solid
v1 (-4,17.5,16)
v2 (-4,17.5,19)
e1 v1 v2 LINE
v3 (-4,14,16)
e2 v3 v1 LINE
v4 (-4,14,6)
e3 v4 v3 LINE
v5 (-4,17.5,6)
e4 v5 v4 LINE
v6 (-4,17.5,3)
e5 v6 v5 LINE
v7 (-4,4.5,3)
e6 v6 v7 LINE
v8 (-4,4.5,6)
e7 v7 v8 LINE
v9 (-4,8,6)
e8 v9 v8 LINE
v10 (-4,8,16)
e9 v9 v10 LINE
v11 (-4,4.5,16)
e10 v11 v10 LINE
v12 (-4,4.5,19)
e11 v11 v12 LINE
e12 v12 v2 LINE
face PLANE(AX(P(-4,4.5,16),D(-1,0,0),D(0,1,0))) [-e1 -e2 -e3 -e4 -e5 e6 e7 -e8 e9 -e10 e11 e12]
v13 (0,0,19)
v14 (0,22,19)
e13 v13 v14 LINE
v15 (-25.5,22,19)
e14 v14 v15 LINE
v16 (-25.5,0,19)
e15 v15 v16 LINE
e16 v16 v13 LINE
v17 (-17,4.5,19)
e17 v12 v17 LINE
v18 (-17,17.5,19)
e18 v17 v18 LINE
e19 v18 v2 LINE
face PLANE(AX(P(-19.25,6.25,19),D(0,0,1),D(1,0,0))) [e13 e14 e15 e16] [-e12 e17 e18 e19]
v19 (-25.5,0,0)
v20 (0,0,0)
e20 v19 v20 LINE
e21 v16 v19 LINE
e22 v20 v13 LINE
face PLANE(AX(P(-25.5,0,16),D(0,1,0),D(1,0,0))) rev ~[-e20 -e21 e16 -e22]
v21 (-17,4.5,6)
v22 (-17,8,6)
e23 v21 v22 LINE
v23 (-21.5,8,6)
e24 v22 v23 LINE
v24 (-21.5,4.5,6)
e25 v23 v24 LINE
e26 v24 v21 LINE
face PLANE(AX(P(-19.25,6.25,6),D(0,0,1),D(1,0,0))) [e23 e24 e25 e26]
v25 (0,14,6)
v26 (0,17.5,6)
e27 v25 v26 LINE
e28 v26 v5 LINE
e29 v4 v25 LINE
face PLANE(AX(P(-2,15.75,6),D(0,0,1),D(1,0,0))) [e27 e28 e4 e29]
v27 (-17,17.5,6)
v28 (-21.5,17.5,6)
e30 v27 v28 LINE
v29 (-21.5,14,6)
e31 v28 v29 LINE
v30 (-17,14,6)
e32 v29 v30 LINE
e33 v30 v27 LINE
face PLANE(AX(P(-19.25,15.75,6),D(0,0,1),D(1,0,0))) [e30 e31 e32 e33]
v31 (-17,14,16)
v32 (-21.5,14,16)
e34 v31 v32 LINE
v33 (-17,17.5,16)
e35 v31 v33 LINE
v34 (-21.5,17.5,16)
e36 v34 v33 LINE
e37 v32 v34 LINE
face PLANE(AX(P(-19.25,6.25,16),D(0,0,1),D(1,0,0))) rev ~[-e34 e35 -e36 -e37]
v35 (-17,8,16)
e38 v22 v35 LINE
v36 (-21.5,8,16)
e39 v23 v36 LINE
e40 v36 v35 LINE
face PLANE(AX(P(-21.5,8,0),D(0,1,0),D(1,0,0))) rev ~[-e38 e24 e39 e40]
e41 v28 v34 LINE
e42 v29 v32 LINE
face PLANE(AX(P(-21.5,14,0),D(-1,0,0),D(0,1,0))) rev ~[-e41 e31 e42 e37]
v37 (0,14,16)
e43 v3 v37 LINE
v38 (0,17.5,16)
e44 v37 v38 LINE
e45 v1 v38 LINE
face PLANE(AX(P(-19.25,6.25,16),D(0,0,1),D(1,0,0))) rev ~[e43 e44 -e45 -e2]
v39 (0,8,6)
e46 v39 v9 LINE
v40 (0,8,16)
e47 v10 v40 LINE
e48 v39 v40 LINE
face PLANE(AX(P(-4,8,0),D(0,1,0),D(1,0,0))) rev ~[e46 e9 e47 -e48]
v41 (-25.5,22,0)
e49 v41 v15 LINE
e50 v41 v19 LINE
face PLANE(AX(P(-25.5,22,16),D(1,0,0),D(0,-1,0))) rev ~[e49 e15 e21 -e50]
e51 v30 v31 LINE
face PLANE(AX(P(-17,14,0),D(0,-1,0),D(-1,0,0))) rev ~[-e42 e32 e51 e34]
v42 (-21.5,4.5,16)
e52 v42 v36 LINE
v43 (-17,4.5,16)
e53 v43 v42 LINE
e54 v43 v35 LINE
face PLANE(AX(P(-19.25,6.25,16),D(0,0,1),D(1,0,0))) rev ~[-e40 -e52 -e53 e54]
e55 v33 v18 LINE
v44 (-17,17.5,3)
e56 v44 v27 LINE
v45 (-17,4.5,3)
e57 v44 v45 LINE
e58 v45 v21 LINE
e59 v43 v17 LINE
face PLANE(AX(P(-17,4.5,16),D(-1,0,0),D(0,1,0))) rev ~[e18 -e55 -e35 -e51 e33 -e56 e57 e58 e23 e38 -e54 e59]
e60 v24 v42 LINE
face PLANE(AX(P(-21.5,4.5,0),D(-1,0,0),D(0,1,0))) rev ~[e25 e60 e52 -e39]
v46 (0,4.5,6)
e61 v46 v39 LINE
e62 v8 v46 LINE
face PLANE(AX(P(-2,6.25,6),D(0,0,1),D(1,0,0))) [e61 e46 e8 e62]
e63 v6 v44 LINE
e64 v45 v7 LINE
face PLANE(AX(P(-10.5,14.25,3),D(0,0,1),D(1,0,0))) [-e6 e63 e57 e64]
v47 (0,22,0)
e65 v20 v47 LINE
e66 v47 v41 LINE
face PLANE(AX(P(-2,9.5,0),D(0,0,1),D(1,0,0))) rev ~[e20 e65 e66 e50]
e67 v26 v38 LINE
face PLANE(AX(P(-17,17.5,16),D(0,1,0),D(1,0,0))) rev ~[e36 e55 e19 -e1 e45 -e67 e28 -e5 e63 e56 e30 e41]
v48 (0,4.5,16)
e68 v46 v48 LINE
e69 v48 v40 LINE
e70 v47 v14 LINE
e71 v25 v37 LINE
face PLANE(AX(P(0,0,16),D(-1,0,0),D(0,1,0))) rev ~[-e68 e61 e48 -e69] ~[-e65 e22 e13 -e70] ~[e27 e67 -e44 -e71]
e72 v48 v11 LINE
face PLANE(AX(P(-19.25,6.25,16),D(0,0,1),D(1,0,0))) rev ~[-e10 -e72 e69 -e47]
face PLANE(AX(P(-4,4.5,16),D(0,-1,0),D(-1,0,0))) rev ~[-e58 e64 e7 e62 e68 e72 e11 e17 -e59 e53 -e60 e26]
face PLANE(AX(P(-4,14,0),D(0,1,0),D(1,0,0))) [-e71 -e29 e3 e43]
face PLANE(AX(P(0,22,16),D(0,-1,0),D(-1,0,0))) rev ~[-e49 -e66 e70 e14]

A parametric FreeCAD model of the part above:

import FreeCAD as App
import Part
import Sketcher

V = App.Vector
Q = App.Units.Quantity

doc = App.newDocument("Part")
body = doc.addObject("PartDesign::Body", "Body")

# Sketch on XY plane
sketch1 = body.newObject("Sketcher::SketchObject", "Sketch")
sketch1.AttachmentSupport = (doc.getObject("XY_Plane"), [""])
sketch1.MapMode = "FlatFace"
sketch1.addGeometry(Part.LineSegment(V(-25.5, 22, 0), V(-25.5, 0, 0)), False)
sketch1.addGeometry(Part.LineSegment(V(-25.5, 0, 0), V(0, 0, 0)), False)
sketch1.addGeometry(Part.LineSegment(V(0, 0, 0), V(0, 4.5, 0)), False)
sketch1.addGeometry(Part.LineSegment(V(0, 4.5, 0), V(-21.5, 4.5, 0)), False)
sketch1.addGeometry(Part.LineSegment(V(-21.5, 4.5, 0), V(-21.5, 8, 0)), False)
sketch1.addGeometry(Part.LineSegment(V(-21.5, 8, 0), V(-17, 8, 0)), False)
sketch1.addGeometry(Part.LineSegment(V(-17, 8, 0), V(-17, 14, 0)), False)
sketch1.addGeometry(Part.LineSegment(V(-17, 14, 0), V(-21.5, 14, 0)), False)
sketch1.addGeometry(Part.LineSegment(V(-21.5, 14, 0), V(-21.5, 17.5, 0)), False)
sketch1.addGeometry(Part.LineSegment(V(-21.5, 17.5, 0), V(0, 17.5, 0)), False)
sketch1.addGeometry(Part.LineSegment(V(0, 17.5, 0), V(0, 22, 0)), False)
sketch1.addGeometry(Part.LineSegment(V(0, 22, 0), V(-25.5, 22, 0)), False)
sketch1.addConstraint(Sketcher.Constraint("Coincident", 0, 2, 1, 1))
sketch1.addConstraint(Sketcher.Constraint("Coincident", 1, 2, 2, 1))
sketch1.addConstraint(Sketcher.Constraint("Coincident", 2, 2, 3, 1))
sketch1.addConstraint(Sketcher.Constraint("Coincident", 3, 2, 4, 1))
sketch1.addConstraint(Sketcher.Constraint("Coincident", 4, 2, 5, 1))
sketch1.addConstraint(Sketcher.Constraint("Coincident", 5, 2, 6, 1))
sketch1.addConstraint(Sketcher.Constraint("Coincident", 6, 2, 7, 1))
sketch1.addConstraint(Sketcher.Constraint("Coincident", 7, 2, 8, 1))
sketch1.addConstraint(Sketcher.Constraint("Coincident", 8, 2, 9, 1))
sketch1.addConstraint(Sketcher.Constraint("Coincident", 9, 2, 10, 1))
sketch1.addConstraint(Sketcher.Constraint("Coincident", 10, 2, 11, 1))
sketch1.addConstraint(Sketcher.Constraint("Coincident", 11, 2, 0, 1))
sketch1.addConstraint(Sketcher.Constraint("Vertical", 0))
sketch1.addConstraint(Sketcher.Constraint("Horizontal", 1))
sketch1.addConstraint(Sketcher.Constraint("Vertical", 2))
sketch1.addConstraint(Sketcher.Constraint("Horizontal", 3))
sketch1.addConstraint(Sketcher.Constraint("Vertical", 4))
sketch1.addConstraint(Sketcher.Constraint("Horizontal", 5))
sketch1.addConstraint(Sketcher.Constraint("Vertical", 6))
sketch1.addConstraint(Sketcher.Constraint("Horizontal", 7))
sketch1.addConstraint(Sketcher.Constraint("Vertical", 8))
sketch1.addConstraint(Sketcher.Constraint("Horizontal", 9))
sketch1.addConstraint(Sketcher.Constraint("Vertical", 10))
sketch1.addConstraint(Sketcher.Constraint("Horizontal", 11))
sketch1.addConstraint(Sketcher.Constraint("Coincident", 1, 2, -1, 1))
sketch1.addConstraint(Sketcher.Constraint("PointOnObject", 9, 2, -2))
sketch1.addConstraint(Sketcher.Constraint("Vertical", 4, 2, 7, 2))
sketch1.addConstraint(Sketcher.Constraint("Equal", 7, 2))
sketch1.addConstraint(Sketcher.Constraint("Equal", 4, 8))
sketch1.addConstraint(Sketcher.Constraint("Equal", 2, 10))
sketch1.addConstraint(Sketcher.Constraint("DistanceY", 0, 2, 0, 1, Q("22 mm")))
sketch1.addConstraint(Sketcher.Constraint("DistanceY", 6, 1, 6, 2, Q("6 mm")))
sketch1.addConstraint(Sketcher.Constraint("DistanceX", 1, 1, 1, 2, Q("25.5 mm")))
sketch1.addConstraint(Sketcher.Constraint("DistanceX", 3, 2, 3, 1, Q("21.5 mm")))
sketch1.addConstraint(Sketcher.Constraint("DistanceX", 5, 1, 5, 2, Q("4.5 mm")))
pad1 = body.newObject("PartDesign::Pad", "Pad")
pad1.Profile = sketch1
pad1.Length = 16

# Sketch on XY plane
sketch2 = body.newObject("Sketcher::SketchObject", "Sketch001")
sketch2.AttachmentSupport = (doc.getObject("XY_Plane"), [""])
sketch2.MapMode = "FlatFace"
sketch2.addGeometry(Part.LineSegment(V(-21.5, 4.5, 0), V(-17, 4.5, 0)), False)
sketch2.addGeometry(Part.LineSegment(V(-17, 4.5, 0), V(-17, 8, 0)), False)
sketch2.addGeometry(Part.LineSegment(V(-17, 8, 0), V(-21.5, 8, 0)), False)
sketch2.addGeometry(Part.LineSegment(V(-21.5, 8, 0), V(-21.5, 4.5, 0)), False)
sketch2.addGeometry(Part.LineSegment(V(-21.5, 14, 0), V(-17, 14, 0)), False)
sketch2.addGeometry(Part.LineSegment(V(-17, 14, 0), V(-17, 17.5, 0)), False)
sketch2.addGeometry(Part.LineSegment(V(-17, 17.5, 0), V(-21.5, 17.5, 0)), False)
sketch2.addGeometry(Part.LineSegment(V(-21.5, 17.5, 0), V(-21.5, 14, 0)), False)
sketch2.addGeometry(Part.LineSegment(V(0, 17.5, 0), V(-4, 17.5, 0)), False)
sketch2.addGeometry(Part.LineSegment(V(-4, 17.5, 0), V(-4, 14, 0)), False)
sketch2.addGeometry(Part.LineSegment(V(-4, 14, 0), V(0, 14, 0)), False)
sketch2.addGeometry(Part.LineSegment(V(0, 14, 0), V(0, 17.5, 0)), False)
sketch2.addGeometry(Part.LineSegment(V(-4, 4.5, 0), V(0, 4.5, 0)), False)
sketch2.addGeometry(Part.LineSegment(V(0, 4.5, 0), V(0, 8, 0)), False)
sketch2.addGeometry(Part.LineSegment(V(0, 8, 0), V(-4, 8, 0)), False)
sketch2.addGeometry(Part.LineSegment(V(-4, 8, 0), V(-4, 4.5, 0)), False)
sketch2.addConstraint(Sketcher.Constraint("Coincident", 0, 2, 1, 1))
sketch2.addConstraint(Sketcher.Constraint("Coincident", 1, 2, 2, 1))
sketch2.addConstraint(Sketcher.Constraint("Coincident", 2, 2, 3, 1))
sketch2.addConstraint(Sketcher.Constraint("Coincident", 3, 2, 0, 1))
sketch2.addConstraint(Sketcher.Constraint("Coincident", 4, 2, 5, 1))
sketch2.addConstraint(Sketcher.Constraint("Coincident", 5, 2, 6, 1))
sketch2.addConstraint(Sketcher.Constraint("Coincident", 6, 2, 7, 1))
sketch2.addConstraint(Sketcher.Constraint("Coincident", 7, 2, 4, 1))
sketch2.addConstraint(Sketcher.Constraint("Coincident", 8, 2, 9, 1))
sketch2.addConstraint(Sketcher.Constraint("Coincident", 9, 2, 10, 1))
sketch2.addConstraint(Sketcher.Constraint("Coincident", 10, 2, 11, 1))
sketch2.addConstraint(Sketcher.Constraint("Coincident", 11, 2, 8, 1))
sketch2.addConstraint(Sketcher.Constraint("Coincident", 12, 2, 13, 1))
sketch2.addConstraint(Sketcher.Constraint("Coincident", 13, 2, 14, 1))
sketch2.addConstraint(Sketcher.Constraint("Coincident", 14, 2, 15, 1))
sketch2.addConstraint(Sketcher.Constraint("Coincident", 15, 2, 12, 1))
sketch2.addConstraint(Sketcher.Constraint("Horizontal", 0))
sketch2.addConstraint(Sketcher.Constraint("Vertical", 1))
sketch2.addConstraint(Sketcher.Constraint("Horizontal", 2))
sketch2.addConstraint(Sketcher.Constraint("Vertical", 3))
sketch2.addConstraint(Sketcher.Constraint("Horizontal", 4))
sketch2.addConstraint(Sketcher.Constraint("Vertical", 5))
sketch2.addConstraint(Sketcher.Constraint("Horizontal", 6))
sketch2.addConstraint(Sketcher.Constraint("Vertical", 7))
sketch2.addConstraint(Sketcher.Constraint("Horizontal", 8))
sketch2.addConstraint(Sketcher.Constraint("Vertical", 9))
sketch2.addConstraint(Sketcher.Constraint("Horizontal", 10))
sketch2.addConstraint(Sketcher.Constraint("Vertical", 11))
sketch2.addConstraint(Sketcher.Constraint("Horizontal", 12))
sketch2.addConstraint(Sketcher.Constraint("Vertical", 13))
sketch2.addConstraint(Sketcher.Constraint("Horizontal", 14))
sketch2.addConstraint(Sketcher.Constraint("Vertical", 15))
sketch2.addConstraint(Sketcher.Constraint("PointOnObject", 10, 2, -2))
sketch2.addConstraint(Sketcher.Constraint("PointOnObject", 12, 2, -2))
sketch2.addConstraint(Sketcher.Constraint("Horizontal", 6, 2, 8, 2))
sketch2.addConstraint(Sketcher.Constraint("Horizontal", 7, 2, 9, 2))
sketch2.addConstraint(Sketcher.Constraint("Horizontal", 3, 2, 12, 2))
sketch2.addConstraint(Sketcher.Constraint("Horizontal", 2, 2, 13, 2))
sketch2.addConstraint(Sketcher.Constraint("Vertical", 1, 2, 4, 2))
sketch2.addConstraint(Sketcher.Constraint("Vertical", 3, 2, 6, 2))
sketch2.addConstraint(Sketcher.Constraint("Vertical", 9, 2, 14, 2))
sketch2.addConstraint(Sketcher.Constraint("Equal", 3, 5))
sketch2.addConstraint(Sketcher.Constraint("DistanceX", 8, 2, 8, 1, Q("4 mm")))
sketch2.addConstraint(Sketcher.Constraint("DistanceX", 0, 1, 0, 2, Q("4.5 mm")))
sketch2.addConstraint(Sketcher.Constraint("DistanceY", 1, 1, 1, 2, Q("3.5 mm")))
sketch2.addConstraint(Sketcher.Constraint("DistanceX", 0, 2, -1, 1, Q("17 mm")))
sketch2.addConstraint(Sketcher.Constraint("DistanceY", -1, 1, 1, 2, Q("8 mm")))
sketch2.addConstraint(Sketcher.Constraint("DistanceY", -1, 1, 4, 2, Q("14 mm")))
pad2 = body.newObject("PartDesign::Pad", "Pad001")
pad2.Profile = sketch2
pad2.Length = 6

# Sketch on XY plane
sketch3 = body.newObject("Sketcher::SketchObject", "Sketch002")
sketch3.AttachmentSupport = (doc.getObject("XY_Plane"), [""])
sketch3.MapMode = "FlatFace"
sketch3.addGeometry(Part.LineSegment(V(-4, 18, 0), V(-17, 18, 0)), False)
sketch3.addGeometry(Part.LineSegment(V(-17, 18, 0), V(-17, 4, 0)), False)
sketch3.addGeometry(Part.LineSegment(V(-17, 4, 0), V(-4, 4, 0)), False)
sketch3.addGeometry(Part.LineSegment(V(-4, 4, 0), V(-4, 18, 0)), False)
sketch3.addConstraint(Sketcher.Constraint("Coincident", 0, 2, 1, 1))
sketch3.addConstraint(Sketcher.Constraint("Coincident", 1, 2, 2, 1))
sketch3.addConstraint(Sketcher.Constraint("Coincident", 2, 2, 3, 1))
sketch3.addConstraint(Sketcher.Constraint("Coincident", 3, 2, 0, 1))
sketch3.addConstraint(Sketcher.Constraint("Horizontal", 0))
sketch3.addConstraint(Sketcher.Constraint("Vertical", 1))
sketch3.addConstraint(Sketcher.Constraint("Horizontal", 2))
sketch3.addConstraint(Sketcher.Constraint("Vertical", 3))
sketch3.addConstraint(Sketcher.Constraint("Equal", 2, 1))
sketch3.addConstraint(Sketcher.Constraint("DistanceX", 0, 2, 0, 1, Q("13 mm")))
sketch3.addConstraint(Sketcher.Constraint("DistanceX", 0, 2, -1, 1, Q("17 mm")))
sketch3.addConstraint(Sketcher.Constraint("DistanceY", -1, 1, 0, 2, Q("17.5 mm")))
pad3 = body.newObject("PartDesign::Pad", "Pad002")
pad3.Profile = sketch3
pad3.Length = 3

# Sketch on XY plane
sketch4 = body.newObject("Sketcher::SketchObject", "Sketch003")
sketch4.AttachmentSupport = (doc.getObject("XY_Plane"), [""])
sketch4.MapMode = "FlatFace"
sketch4.addGeometry(Part.LineSegment(V(-4, 8, 0), V(0, 8, 0)), False)
sketch4.addGeometry(Part.LineSegment(V(0, 8, 0), V(0, 14, 0)), False)
sketch4.addGeometry(Part.LineSegment(V(0, 14, 0), V(-4, 14, 0)), False)
sketch4.addGeometry(Part.LineSegment(V(-4, 14, 0), V(-4, 8, 0)), False)
sketch4.addConstraint(Sketcher.Constraint("Coincident", 0, 2, 1, 1))
sketch4.addConstraint(Sketcher.Constraint("Coincident", 1, 2, 2, 1))
sketch4.addConstraint(Sketcher.Constraint("Coincident", 2, 2, 3, 1))
sketch4.addConstraint(Sketcher.Constraint("Coincident", 3, 2, 0, 1))
sketch4.addConstraint(Sketcher.Constraint("Horizontal", 0))
sketch4.addConstraint(Sketcher.Constraint("Vertical", 1))
sketch4.addConstraint(Sketcher.Constraint("Horizontal", 2))
sketch4.addConstraint(Sketcher.Constraint("Vertical", 3))
sketch4.addConstraint(Sketcher.Constraint("PointOnObject", 0, 2, -2))
sketch4.addConstraint(Sketcher.Constraint("DistanceX", 0, 1, 0, 2, Q("4 mm")))
sketch4.addConstraint(Sketcher.Constraint("DistanceY", 1, 1, 1, 2, Q("6 mm")))
sketch4.addConstraint(Sketcher.Constraint("DistanceY", -1, 1, 0, 2, Q("8 mm")))
pad4 = body.newObject("PartDesign::Pad", "Pad003")
pad4.Profile = sketch4
pad4.Length = 16

# Sketch on XY plane
sketch5 = body.newObject("Sketcher::SketchObject", "Sketch004")
sketch5.AttachmentSupport = (doc.getObject("XY_Plane"), [""])
sketch5.MapMode = "FlatFace"
sketch5.AttachmentOffset = App.Placement(V(0, 0, 16), App.Rotation())
sketch5.addGeometry(Part.LineSegment(V(-26, 0, 0), V(0, 0, 0)), False)
sketch5.addGeometry(Part.LineSegment(V(0, 0, 0), V(0, 22, 0)), False)
sketch5.addGeometry(Part.LineSegment(V(0, 22, 0), V(-26, 22, 0)), False)
sketch5.addGeometry(Part.LineSegment(V(-26, 22, 0), V(-26, 0, 0)), False)
sketch5.addGeometry(Part.LineSegment(V(-17, 4, 0), V(-17, 18, 0)), False)
sketch5.addGeometry(Part.LineSegment(V(-17, 18, 0), V(-4, 18, 0)), False)
sketch5.addGeometry(Part.LineSegment(V(-4, 18, 0), V(-4, 4, 0)), False)
sketch5.addGeometry(Part.LineSegment(V(-4, 4, 0), V(-17, 4, 0)), False)
sketch5.addConstraint(Sketcher.Constraint("Coincident", 0, 2, 1, 1))
sketch5.addConstraint(Sketcher.Constraint("Coincident", 1, 2, 2, 1))
sketch5.addConstraint(Sketcher.Constraint("Coincident", 2, 2, 3, 1))
sketch5.addConstraint(Sketcher.Constraint("Coincident", 3, 2, 0, 1))
sketch5.addConstraint(Sketcher.Constraint("Coincident", 4, 2, 5, 1))
sketch5.addConstraint(Sketcher.Constraint("Coincident", 5, 2, 6, 1))
sketch5.addConstraint(Sketcher.Constraint("Coincident", 6, 2, 7, 1))
sketch5.addConstraint(Sketcher.Constraint("Coincident", 7, 2, 4, 1))
sketch5.addConstraint(Sketcher.Constraint("Horizontal", 0))
sketch5.addConstraint(Sketcher.Constraint("Vertical", 1))
sketch5.addConstraint(Sketcher.Constraint("Horizontal", 2))
sketch5.addConstraint(Sketcher.Constraint("Vertical", 3))
sketch5.addConstraint(Sketcher.Constraint("Vertical", 4))
sketch5.addConstraint(Sketcher.Constraint("Horizontal", 5))
sketch5.addConstraint(Sketcher.Constraint("Vertical", 6))
sketch5.addConstraint(Sketcher.Constraint("Horizontal", 7))
sketch5.addConstraint(Sketcher.Constraint("Coincident", 0, 2, -1, 1))
sketch5.addConstraint(Sketcher.Constraint("Equal", 7, 4))
sketch5.addConstraint(Sketcher.Constraint("DistanceX", 5, 1, 5, 2, Q("13 mm")))
sketch5.addConstraint(Sketcher.Constraint("DistanceY", 1, 1, 1, 2, Q("22 mm")))
sketch5.addConstraint(Sketcher.Constraint("DistanceX", 0, 1, 0, 2, Q("25.5 mm")))
sketch5.addConstraint(Sketcher.Constraint("DistanceX", 4, 2, -1, 1, Q("17 mm")))
sketch5.addConstraint(Sketcher.Constraint("DistanceY", -1, 1, 4, 2, Q("17.5 mm")))
pad5 = body.newObject("PartDesign::Pad", "Pad004")
pad5.Profile = sketch5
pad5.Length = 3

doc.recompute()
